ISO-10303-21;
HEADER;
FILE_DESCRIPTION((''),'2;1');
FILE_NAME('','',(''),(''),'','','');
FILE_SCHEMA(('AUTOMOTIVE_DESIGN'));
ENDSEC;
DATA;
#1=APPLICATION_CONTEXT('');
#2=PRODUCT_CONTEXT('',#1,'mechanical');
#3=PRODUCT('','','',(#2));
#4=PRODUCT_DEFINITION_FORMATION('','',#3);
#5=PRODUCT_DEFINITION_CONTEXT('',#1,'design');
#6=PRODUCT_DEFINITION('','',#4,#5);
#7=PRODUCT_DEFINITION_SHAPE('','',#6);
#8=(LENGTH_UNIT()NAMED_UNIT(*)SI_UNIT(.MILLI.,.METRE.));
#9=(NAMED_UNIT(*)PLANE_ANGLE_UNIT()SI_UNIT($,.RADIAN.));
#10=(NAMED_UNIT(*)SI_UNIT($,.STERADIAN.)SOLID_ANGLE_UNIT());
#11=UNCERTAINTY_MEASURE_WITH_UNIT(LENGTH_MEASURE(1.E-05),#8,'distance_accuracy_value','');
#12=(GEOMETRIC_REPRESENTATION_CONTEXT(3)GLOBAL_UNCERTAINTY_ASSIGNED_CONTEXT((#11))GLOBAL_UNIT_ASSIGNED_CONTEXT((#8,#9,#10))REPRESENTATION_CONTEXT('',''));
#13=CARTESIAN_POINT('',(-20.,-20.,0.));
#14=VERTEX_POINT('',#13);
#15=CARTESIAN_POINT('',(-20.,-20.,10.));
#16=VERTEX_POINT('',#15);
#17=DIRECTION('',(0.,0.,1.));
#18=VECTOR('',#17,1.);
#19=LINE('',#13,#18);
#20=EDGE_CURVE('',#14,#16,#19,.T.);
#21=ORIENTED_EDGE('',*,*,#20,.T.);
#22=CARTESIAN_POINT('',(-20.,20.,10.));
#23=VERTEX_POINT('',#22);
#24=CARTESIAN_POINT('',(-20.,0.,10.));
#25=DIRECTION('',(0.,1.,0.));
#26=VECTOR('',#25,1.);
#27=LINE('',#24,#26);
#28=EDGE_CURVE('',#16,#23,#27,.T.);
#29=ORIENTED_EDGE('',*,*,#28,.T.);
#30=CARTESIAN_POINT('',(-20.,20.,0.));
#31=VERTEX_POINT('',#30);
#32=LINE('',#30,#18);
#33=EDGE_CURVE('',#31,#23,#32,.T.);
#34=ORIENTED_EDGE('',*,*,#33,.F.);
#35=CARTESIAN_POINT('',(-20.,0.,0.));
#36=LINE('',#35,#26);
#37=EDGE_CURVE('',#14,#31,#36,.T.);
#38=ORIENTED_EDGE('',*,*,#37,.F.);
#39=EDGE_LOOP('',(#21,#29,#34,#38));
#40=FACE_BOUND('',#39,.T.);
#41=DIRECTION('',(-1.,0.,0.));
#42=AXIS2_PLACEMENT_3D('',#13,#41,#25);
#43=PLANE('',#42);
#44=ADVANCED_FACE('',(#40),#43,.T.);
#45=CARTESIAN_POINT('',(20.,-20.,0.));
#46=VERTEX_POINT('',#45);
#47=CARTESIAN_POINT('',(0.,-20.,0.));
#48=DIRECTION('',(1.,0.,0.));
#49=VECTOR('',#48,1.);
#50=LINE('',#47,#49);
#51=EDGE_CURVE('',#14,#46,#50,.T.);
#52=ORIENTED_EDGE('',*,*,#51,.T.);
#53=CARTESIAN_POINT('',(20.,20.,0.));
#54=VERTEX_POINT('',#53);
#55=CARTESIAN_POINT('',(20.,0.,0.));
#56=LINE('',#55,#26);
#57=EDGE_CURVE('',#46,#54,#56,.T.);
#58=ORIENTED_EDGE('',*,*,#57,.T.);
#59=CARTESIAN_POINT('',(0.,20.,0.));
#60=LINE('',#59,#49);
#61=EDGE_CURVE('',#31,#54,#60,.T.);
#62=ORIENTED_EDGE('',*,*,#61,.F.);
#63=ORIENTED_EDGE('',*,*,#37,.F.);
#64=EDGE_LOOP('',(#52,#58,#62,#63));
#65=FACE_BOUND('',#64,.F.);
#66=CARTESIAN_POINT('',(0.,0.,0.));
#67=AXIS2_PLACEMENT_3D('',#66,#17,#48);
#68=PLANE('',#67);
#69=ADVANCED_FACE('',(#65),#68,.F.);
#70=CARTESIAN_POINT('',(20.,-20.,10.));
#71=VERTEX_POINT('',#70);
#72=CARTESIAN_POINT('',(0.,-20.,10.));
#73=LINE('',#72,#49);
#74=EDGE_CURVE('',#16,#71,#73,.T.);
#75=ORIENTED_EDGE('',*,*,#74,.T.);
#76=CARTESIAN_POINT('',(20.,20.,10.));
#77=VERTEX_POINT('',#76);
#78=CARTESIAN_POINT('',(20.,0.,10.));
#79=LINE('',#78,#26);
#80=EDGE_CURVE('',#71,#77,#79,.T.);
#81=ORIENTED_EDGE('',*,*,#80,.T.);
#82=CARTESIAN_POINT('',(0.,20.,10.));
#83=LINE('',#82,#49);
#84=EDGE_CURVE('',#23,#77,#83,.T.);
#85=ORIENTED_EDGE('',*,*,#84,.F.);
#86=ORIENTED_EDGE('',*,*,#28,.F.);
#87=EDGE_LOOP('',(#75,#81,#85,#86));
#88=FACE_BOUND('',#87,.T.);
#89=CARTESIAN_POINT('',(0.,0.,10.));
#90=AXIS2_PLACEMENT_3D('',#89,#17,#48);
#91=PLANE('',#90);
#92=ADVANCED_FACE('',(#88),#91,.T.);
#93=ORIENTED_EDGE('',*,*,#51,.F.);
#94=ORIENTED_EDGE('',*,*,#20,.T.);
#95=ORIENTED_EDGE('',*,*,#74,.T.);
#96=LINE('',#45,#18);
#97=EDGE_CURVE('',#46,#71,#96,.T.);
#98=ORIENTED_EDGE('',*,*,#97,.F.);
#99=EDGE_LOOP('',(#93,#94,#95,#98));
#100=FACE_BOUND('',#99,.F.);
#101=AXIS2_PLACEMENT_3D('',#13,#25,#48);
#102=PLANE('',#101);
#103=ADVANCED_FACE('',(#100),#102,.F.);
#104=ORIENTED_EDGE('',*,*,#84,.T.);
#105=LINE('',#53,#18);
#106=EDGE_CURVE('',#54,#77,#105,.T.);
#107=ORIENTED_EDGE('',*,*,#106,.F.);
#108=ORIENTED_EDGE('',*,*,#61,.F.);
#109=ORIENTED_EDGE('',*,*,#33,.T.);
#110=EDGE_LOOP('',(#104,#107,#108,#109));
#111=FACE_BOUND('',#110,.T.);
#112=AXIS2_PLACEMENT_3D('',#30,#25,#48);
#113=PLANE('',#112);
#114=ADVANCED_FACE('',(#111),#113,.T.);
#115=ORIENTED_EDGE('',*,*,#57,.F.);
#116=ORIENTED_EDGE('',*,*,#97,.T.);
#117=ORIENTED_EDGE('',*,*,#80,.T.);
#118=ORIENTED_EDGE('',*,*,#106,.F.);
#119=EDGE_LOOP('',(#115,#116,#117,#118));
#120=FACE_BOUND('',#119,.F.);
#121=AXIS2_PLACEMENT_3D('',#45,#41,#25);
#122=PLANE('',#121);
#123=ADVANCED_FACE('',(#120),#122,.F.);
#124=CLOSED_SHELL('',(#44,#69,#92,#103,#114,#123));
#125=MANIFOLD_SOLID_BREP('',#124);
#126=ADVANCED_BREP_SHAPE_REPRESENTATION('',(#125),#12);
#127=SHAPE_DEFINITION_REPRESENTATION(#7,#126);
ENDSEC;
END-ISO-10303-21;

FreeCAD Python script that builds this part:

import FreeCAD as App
import Part
import Sketcher


def add_polygon(sketch, points):
    """Adds a closed chain of lines whose ends are joined by coincident constraints."""
    first, n = sketch.GeometryCount, len(points)
    for a, b in zip(points, points[1:] + points[:1]):
        sketch.addGeometry(Part.LineSegment(App.Vector(*a, 0), App.Vector(*b, 0)), False)
    for i in range(n):
        sketch.addConstraint(Sketcher.Constraint("Coincident", first + i, 2, first + (i + 1) % n, 1))

doc = App.newDocument("Part")
body = doc.addObject("PartDesign::Body", "Body")

# Sketch on XY plane
sketch1 = body.newObject("Sketcher::SketchObject", "Sketch")
sketch1.AttachmentSupport = (doc.getObject("XY_Plane"), [""])
sketch1.MapMode = "FlatFace"
add_polygon(sketch1, [(-20, 20), (-20, -20), (20, -20), (20, 20)])  # lines 0-3
sketch1.addConstraint([
    Sketcher.Constraint("Vertical", 0),
    Sketcher.Constraint("Horizontal", 1),
    Sketcher.Constraint("Vertical", 2),
    Sketcher.Constraint("Horizontal", 3),
    Sketcher.Constraint("Symmetric", 0, 2, 2, 2, -1, 1),
    Sketcher.Constraint("Equal", 3, 0),
    Sketcher.Constraint("DistanceX", 1, 1, 1, 2, 40.0),
])
pad1 = body.newObject("PartDesign::Pad", "Pad")
pad1.Profile = sketch1
pad1.Length = 10

doc.recompute()
